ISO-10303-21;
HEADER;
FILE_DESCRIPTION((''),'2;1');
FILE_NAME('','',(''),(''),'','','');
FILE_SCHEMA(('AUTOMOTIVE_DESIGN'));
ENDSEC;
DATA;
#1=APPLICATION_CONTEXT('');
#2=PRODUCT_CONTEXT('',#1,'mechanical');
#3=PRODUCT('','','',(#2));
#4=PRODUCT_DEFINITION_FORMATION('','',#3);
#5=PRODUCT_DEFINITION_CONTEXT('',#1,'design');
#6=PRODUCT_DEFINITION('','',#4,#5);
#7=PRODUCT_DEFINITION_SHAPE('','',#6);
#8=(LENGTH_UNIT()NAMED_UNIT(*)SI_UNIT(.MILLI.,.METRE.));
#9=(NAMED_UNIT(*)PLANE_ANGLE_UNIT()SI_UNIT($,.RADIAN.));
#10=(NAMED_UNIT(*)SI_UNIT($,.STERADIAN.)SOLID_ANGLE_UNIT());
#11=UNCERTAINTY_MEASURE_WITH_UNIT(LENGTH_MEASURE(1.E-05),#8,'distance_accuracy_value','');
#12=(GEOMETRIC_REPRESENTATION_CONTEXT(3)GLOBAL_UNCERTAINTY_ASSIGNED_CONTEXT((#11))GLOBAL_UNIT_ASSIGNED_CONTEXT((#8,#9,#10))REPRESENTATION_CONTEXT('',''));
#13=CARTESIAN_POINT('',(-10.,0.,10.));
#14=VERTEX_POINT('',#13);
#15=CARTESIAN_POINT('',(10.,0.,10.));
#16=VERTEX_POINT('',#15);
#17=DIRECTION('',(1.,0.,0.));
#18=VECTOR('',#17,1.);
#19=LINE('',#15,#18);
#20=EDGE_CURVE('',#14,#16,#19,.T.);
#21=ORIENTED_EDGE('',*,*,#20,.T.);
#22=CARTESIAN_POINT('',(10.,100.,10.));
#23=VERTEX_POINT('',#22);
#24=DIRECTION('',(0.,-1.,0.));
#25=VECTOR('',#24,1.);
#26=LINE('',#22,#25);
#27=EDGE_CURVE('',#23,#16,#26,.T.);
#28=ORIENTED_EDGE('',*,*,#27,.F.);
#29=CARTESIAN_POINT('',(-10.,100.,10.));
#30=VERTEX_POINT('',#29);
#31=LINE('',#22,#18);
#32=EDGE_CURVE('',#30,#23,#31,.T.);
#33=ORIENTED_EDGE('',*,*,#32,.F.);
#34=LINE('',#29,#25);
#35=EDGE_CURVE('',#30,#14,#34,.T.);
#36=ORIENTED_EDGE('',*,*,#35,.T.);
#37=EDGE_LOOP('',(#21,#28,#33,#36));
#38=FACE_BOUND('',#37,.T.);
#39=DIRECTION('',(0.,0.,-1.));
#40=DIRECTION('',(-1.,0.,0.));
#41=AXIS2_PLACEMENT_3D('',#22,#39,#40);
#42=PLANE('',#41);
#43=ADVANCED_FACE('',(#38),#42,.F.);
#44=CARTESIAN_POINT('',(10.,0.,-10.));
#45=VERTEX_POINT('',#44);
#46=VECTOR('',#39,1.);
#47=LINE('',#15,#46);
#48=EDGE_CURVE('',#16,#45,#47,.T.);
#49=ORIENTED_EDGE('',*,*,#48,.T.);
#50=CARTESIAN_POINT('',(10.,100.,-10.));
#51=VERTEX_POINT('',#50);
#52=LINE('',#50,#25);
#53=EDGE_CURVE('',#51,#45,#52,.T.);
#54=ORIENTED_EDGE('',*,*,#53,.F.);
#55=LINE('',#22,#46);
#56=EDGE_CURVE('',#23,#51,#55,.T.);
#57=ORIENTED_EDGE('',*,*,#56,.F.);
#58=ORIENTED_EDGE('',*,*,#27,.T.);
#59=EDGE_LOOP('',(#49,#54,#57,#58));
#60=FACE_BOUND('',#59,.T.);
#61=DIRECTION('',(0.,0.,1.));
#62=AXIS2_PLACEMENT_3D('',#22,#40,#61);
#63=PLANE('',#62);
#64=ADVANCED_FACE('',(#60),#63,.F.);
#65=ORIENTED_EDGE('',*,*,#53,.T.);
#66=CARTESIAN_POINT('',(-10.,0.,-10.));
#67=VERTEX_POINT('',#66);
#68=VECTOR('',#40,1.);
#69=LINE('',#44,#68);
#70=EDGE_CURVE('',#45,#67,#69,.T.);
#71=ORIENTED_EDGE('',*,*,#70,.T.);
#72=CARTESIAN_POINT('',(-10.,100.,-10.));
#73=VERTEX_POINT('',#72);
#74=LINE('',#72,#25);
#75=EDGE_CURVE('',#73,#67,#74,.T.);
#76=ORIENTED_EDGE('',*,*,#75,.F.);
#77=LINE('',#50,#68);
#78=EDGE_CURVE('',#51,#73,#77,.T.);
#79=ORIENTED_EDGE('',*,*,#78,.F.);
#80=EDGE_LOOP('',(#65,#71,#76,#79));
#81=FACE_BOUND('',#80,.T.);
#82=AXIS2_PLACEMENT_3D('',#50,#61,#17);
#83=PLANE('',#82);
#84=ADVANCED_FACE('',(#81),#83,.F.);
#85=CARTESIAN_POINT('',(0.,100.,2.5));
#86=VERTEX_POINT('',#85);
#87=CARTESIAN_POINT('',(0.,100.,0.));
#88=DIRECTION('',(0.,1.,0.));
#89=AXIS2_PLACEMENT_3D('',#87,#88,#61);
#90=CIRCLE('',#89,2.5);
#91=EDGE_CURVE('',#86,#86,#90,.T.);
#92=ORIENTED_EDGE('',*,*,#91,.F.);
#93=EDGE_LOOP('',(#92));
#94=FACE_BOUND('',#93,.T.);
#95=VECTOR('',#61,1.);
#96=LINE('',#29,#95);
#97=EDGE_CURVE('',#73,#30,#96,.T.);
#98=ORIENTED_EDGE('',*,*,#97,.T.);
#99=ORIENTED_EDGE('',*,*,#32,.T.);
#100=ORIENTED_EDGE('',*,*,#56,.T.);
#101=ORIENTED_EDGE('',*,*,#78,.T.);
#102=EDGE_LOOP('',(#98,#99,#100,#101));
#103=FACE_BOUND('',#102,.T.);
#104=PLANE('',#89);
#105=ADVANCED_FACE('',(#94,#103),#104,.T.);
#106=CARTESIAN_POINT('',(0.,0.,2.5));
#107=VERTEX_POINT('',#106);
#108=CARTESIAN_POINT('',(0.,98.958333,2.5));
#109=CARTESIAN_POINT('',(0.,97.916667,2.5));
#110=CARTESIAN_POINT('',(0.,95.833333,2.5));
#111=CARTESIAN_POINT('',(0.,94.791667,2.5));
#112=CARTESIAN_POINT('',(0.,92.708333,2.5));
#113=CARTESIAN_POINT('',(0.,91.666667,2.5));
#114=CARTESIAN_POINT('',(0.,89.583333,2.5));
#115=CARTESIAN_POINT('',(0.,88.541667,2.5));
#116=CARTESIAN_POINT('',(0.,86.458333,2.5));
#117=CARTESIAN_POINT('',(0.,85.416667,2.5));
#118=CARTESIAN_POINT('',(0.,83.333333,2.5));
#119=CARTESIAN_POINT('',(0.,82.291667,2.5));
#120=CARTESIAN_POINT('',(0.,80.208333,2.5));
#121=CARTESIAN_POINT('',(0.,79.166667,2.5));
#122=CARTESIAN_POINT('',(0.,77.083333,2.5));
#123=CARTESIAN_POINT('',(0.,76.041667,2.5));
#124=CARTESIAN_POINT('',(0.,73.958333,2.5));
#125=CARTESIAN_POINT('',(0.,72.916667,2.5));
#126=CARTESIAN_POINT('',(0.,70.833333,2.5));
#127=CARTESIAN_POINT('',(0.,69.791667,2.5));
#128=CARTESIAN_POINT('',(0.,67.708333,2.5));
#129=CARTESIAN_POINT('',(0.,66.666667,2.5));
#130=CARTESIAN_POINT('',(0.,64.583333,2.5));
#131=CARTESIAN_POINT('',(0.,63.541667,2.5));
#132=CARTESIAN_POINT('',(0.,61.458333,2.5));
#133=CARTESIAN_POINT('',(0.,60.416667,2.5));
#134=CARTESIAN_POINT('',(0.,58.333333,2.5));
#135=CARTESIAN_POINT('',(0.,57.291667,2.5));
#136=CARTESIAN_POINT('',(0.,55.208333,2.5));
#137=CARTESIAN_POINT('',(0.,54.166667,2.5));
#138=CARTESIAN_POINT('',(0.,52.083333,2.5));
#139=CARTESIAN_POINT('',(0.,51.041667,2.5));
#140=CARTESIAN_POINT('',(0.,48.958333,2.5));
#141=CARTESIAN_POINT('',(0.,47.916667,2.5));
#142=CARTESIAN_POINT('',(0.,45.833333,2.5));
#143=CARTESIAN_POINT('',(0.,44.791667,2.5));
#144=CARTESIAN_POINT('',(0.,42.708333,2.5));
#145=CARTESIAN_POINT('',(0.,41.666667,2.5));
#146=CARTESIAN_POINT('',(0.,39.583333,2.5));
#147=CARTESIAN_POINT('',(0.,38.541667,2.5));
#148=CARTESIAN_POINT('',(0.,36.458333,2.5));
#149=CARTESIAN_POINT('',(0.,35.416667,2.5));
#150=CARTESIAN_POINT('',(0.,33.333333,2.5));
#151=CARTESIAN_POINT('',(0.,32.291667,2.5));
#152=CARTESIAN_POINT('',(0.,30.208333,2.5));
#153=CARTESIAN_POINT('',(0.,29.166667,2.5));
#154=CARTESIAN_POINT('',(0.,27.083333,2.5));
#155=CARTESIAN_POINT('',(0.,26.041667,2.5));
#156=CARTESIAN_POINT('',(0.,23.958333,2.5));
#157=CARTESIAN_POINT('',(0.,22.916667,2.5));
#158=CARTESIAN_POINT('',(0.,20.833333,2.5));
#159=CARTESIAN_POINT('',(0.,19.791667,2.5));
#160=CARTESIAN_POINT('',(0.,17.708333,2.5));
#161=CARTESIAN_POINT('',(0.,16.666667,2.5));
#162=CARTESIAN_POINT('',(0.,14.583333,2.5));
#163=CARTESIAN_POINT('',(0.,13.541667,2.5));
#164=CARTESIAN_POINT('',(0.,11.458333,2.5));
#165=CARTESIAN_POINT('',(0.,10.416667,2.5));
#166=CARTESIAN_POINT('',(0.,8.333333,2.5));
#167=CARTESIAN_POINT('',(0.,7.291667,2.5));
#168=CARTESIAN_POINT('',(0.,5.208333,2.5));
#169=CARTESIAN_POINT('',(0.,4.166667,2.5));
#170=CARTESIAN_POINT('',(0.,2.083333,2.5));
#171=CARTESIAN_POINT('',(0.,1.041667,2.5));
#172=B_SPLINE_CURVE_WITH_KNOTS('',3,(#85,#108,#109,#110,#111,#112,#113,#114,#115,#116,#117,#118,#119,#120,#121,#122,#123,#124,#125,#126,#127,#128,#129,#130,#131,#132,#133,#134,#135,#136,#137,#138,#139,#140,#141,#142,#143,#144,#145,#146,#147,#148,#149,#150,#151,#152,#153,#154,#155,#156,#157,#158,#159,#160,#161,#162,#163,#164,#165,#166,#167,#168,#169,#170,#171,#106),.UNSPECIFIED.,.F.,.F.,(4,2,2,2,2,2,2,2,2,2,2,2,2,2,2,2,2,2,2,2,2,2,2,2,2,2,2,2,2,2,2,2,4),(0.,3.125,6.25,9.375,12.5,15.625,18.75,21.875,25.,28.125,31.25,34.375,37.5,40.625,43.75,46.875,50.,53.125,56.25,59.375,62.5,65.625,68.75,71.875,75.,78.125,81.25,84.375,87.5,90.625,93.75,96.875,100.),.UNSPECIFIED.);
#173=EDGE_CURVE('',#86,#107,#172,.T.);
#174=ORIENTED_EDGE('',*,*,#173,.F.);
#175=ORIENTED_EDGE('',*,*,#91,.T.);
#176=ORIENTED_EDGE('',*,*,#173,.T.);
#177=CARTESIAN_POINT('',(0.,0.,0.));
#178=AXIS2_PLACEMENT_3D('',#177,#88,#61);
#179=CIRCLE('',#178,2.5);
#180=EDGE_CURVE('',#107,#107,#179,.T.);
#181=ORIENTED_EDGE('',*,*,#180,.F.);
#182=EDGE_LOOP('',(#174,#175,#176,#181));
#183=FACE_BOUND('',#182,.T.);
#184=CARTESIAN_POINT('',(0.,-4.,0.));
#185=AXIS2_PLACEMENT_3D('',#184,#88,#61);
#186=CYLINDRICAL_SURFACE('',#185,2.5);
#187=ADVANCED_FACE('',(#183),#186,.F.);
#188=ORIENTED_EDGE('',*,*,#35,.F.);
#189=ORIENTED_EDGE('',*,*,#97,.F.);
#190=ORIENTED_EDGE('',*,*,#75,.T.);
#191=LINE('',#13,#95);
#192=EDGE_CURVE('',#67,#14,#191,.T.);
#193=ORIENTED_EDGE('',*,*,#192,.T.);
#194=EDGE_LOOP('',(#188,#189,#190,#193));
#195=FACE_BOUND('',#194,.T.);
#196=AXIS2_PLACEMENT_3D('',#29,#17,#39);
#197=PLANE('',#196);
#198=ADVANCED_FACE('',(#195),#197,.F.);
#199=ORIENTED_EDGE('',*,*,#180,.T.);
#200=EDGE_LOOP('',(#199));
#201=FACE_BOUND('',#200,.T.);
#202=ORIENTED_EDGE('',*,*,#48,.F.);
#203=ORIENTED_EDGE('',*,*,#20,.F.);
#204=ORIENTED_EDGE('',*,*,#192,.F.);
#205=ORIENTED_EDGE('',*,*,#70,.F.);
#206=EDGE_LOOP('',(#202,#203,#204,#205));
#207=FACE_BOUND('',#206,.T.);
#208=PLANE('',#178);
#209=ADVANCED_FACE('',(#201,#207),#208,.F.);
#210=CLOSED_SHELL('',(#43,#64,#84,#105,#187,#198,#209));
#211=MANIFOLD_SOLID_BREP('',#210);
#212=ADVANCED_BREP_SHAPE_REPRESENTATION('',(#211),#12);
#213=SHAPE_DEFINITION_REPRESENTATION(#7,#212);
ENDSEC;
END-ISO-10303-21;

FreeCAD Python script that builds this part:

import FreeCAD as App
import Part
import Sketcher

V = App.Vector

doc = App.newDocument("Part")
params = doc.addObject("Spreadsheet::Sheet", "Params")
for row, (alias, value) in enumerate([
    ("sketch1_width", "20 mm"),
    ("pad1_length", "100 mm"),
    ("sketch2_diameter", "5 mm"),
    ("pocket1_length", "104 mm"),
], start=1):
    params.set(f"A{row}", alias)
    params.set(f"B{row}", "=" + value)
    params.setAlias(f"B{row}", alias)

body = doc.addObject("PartDesign::Body", "Body")

# Sketch on XZ plane
sketch1 = doc.addObject("Sketcher::SketchObject", "Sketch")
body.addObject(sketch1)
sketch1.AttachmentSupport = (doc.XZ_Plane, [""])
sketch1.MapMode = "FlatFace"
sketch1.addGeometry([
    Part.LineSegment(V(-10, -10, 0), V(-10, 10, 0)),
    Part.LineSegment(V(-10, 10, 0), V(10, 10, 0)),
    Part.LineSegment(V(10, 10, 0), V(10, -10, 0)),
    Part.LineSegment(V(10, -10, 0), V(-10, -10, 0)),
], False)
sketch1.addConstraint([
    Sketcher.Constraint("Coincident", 0, 2, 1, 1),
    Sketcher.Constraint("Coincident", 1, 2, 2, 1),
    Sketcher.Constraint("Coincident", 2, 2, 3, 1),
    Sketcher.Constraint("Coincident", 3, 2, 0, 1),
    Sketcher.Constraint("Vertical", 0),
    Sketcher.Constraint("Horizontal", 1),
    Sketcher.Constraint("Vertical", 2),
    Sketcher.Constraint("Horizontal", 3),
    Sketcher.Constraint("Symmetric", 0, 2, 2, 2, -1, 1),
    Sketcher.Constraint("Equal", 3, 0),
    Sketcher.Constraint("DistanceX", 1, 1, 1, 2, 20.0),
])
sketch1.setExpression("Constraints[10]", "Params.sketch1_width")
pad1 = doc.addObject("PartDesign::Pad", "Pad")
body.addObject(pad1)
pad1.Profile = sketch1
pad1.setExpression("Length", "Params.pad1_length")
pad1.Reversed = True

# Sketch on XZ plane
sketch2 = doc.addObject("Sketcher::SketchObject", "Sketch001")
body.addObject(sketch2)
sketch2.AttachmentSupport = (doc.XZ_Plane, [""])
sketch2.MapMode = "FlatFace"
sketch2.AttachmentOffset = App.Placement(V(0, 0, -100), App.Rotation())
sketch2.addGeometry(Part.Circle(V(0, 0, 0), V(0, 0, 1), 2.5), False)
sketch2.addConstraint([
    Sketcher.Constraint("Coincident", 0, 3, -1, 1),
    Sketcher.Constraint("Diameter", 0, 5.0),
])
sketch2.setExpression("Constraints[1]", "Params.sketch2_diameter")
pocket1 = doc.addObject("PartDesign::Pocket", "Pocket")
body.addObject(pocket1)
pocket1.Profile = sketch2
pocket1.setExpression("Length", "Params.pocket1_length")
pocket1.Reversed = True

doc.recompute()
